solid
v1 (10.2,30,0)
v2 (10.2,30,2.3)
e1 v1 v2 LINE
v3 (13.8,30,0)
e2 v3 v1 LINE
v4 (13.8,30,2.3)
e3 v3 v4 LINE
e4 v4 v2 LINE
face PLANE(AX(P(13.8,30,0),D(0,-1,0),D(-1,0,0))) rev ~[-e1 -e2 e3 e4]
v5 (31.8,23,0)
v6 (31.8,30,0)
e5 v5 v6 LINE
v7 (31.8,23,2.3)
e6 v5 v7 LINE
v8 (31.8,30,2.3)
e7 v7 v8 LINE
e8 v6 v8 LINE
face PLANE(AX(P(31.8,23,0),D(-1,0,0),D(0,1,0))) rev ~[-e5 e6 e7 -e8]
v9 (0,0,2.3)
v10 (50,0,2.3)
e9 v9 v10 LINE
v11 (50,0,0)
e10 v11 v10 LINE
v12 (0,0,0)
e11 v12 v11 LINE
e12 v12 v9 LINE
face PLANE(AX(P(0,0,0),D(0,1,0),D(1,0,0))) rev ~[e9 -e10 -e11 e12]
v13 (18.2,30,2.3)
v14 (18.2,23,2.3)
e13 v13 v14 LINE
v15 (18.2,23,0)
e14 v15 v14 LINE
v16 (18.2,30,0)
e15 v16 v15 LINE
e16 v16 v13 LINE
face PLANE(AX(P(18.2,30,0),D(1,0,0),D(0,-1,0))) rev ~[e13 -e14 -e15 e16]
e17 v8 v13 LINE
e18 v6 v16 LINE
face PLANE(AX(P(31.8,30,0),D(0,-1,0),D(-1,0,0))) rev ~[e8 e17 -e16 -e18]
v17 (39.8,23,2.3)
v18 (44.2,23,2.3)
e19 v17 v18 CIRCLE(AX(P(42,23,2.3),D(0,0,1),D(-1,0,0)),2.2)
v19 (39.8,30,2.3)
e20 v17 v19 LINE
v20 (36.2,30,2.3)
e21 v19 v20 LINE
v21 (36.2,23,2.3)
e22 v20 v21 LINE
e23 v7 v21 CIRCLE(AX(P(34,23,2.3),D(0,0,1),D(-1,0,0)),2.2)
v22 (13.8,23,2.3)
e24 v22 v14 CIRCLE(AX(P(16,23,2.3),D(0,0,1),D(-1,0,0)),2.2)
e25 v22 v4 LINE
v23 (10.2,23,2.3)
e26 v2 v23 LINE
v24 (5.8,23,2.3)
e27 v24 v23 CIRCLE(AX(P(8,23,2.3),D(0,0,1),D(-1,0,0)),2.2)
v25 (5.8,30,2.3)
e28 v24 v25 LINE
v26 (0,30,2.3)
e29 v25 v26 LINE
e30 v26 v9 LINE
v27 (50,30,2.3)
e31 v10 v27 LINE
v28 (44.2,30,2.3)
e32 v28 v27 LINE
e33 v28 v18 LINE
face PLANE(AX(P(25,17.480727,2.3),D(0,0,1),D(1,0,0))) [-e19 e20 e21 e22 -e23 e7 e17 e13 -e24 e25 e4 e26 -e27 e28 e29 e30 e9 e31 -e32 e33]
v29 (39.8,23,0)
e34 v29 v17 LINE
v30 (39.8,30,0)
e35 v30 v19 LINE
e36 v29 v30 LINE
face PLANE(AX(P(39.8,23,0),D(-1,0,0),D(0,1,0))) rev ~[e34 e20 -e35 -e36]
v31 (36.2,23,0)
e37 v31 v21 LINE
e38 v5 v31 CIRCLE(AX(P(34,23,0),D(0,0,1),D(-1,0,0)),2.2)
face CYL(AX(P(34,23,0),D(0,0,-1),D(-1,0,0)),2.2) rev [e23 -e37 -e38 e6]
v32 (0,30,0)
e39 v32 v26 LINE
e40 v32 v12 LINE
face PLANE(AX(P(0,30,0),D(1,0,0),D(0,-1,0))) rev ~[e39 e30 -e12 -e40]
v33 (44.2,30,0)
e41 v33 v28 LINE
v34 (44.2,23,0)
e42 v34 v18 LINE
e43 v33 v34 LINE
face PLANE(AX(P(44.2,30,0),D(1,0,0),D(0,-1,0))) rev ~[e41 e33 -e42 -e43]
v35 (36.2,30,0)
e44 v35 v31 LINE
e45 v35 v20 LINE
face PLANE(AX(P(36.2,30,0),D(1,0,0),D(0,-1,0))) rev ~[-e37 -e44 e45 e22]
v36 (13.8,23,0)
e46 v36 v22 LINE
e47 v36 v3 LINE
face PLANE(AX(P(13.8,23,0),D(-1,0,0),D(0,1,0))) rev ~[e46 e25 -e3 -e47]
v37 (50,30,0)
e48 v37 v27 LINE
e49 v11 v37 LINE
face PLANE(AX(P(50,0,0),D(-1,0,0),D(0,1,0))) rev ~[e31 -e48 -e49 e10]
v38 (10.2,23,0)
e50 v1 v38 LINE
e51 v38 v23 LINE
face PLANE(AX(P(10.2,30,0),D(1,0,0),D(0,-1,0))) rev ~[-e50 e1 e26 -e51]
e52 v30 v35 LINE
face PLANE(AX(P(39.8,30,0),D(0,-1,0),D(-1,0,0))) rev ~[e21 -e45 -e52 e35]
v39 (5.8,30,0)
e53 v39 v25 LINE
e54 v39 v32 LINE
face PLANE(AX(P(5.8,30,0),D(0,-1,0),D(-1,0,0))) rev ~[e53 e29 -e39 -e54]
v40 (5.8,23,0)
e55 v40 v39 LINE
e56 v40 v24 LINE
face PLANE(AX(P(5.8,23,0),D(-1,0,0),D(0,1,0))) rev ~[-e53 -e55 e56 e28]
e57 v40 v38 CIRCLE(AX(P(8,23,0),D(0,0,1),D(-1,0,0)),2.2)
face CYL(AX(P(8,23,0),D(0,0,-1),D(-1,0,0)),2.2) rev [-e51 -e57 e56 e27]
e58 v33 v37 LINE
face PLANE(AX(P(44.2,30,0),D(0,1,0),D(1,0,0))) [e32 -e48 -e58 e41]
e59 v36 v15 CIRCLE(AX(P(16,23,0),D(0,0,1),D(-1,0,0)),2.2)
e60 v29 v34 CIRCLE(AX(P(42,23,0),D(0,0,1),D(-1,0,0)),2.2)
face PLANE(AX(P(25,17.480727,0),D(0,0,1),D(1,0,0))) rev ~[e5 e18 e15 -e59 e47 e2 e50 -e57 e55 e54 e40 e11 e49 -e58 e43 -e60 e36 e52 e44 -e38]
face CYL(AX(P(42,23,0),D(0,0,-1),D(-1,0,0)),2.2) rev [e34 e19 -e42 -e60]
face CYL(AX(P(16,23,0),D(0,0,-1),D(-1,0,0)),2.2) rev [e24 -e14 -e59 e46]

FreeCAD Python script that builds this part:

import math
import FreeCAD as App
import Part
import Sketcher
from FreeCAD import Vector
Q = App.Units.Quantity

doc = App.newDocument("Part")
body = doc.addObject("PartDesign::Body", "Body")

sketch1 = body.newObject("Sketcher::SketchObject", "Sketch")
sketch1.AttachmentSupport = (doc.getObject("XY_Plane"), [""])
sketch1.MapMode = "FlatFace"
sketch1.addGeometry(Part.LineSegment(Vector(0, 0, 0), Vector(50, 0, 0)), False)
sketch1.addGeometry(Part.LineSegment(Vector(50, 0, 0), Vector(50, 30, 0)), False)
sketch1.addGeometry(Part.LineSegment(Vector(50, 30, 0), Vector(44.2, 30, 0)), False)
sketch1.addGeometry(Part.LineSegment(Vector(44.2, 30, 0), Vector(44.2, 23, 0)), False)
sketch1.addGeometry(Part.ArcOfCircle(Part.Circle(Vector(42, 23, 0), Vector(0, 0, 1), 2.2), math.radians(180), math.radians(360)), False)
sketch1.addGeometry(Part.LineSegment(Vector(39.8, 23, 0), Vector(39.8, 30, 0)), False)
sketch1.addGeometry(Part.LineSegment(Vector(39.8, 30, 0), Vector(36.2, 30, 0)), False)
sketch1.addGeometry(Part.LineSegment(Vector(36.2, 30, 0), Vector(36.2, 23, 0)), False)
sketch1.addGeometry(Part.ArcOfCircle(Part.Circle(Vector(34, 23, 0), Vector(0, 0, 1), 2.2), math.radians(180), math.radians(360)), False)
sketch1.addGeometry(Part.LineSegment(Vector(31.8, 23, 0), Vector(31.8, 30, 0)), False)
sketch1.addGeometry(Part.LineSegment(Vector(31.8, 30, 0), Vector(18.2, 30, 0)), False)
sketch1.addGeometry(Part.LineSegment(Vector(18.2, 30, 0), Vector(18.2, 23, 0)), False)
sketch1.addGeometry(Part.ArcOfCircle(Part.Circle(Vector(16, 23, 0), Vector(0, 0, 1), 2.2), math.radians(180), math.radians(360)), False)
sketch1.addGeometry(Part.LineSegment(Vector(13.8, 23, 0), Vector(13.8, 30, 0)), False)
sketch1.addGeometry(Part.LineSegment(Vector(13.8, 30, 0), Vector(10.2, 30, 0)), False)
sketch1.addGeometry(Part.LineSegment(Vector(10.2, 30, 0), Vector(10.2, 23, 0)), False)
sketch1.addGeometry(Part.ArcOfCircle(Part.Circle(Vector(8, 23, 0), Vector(0, 0, 1), 2.2), math.radians(180), math.radians(360)), False)
sketch1.addGeometry(Part.LineSegment(Vector(5.8, 23, 0), Vector(5.8, 30, 0)), False)
sketch1.addGeometry(Part.LineSegment(Vector(5.8, 30, 0), Vector(0, 30, 0)), False)
sketch1.addGeometry(Part.LineSegment(Vector(0, 30, 0), Vector(0, 0, 0)), False)
sketch1.addConstraint(Sketcher.Constraint("Coincident", 0, 2, 1, 1))
sketch1.addConstraint(Sketcher.Constraint("Coincident", 1, 2, 2, 1))
sketch1.addConstraint(Sketcher.Constraint("Coincident", 2, 2, 3, 1))
sketch1.addConstraint(Sketcher.Constraint("Tangent", 3, 2, 4, 2))
sketch1.addConstraint(Sketcher.Constraint("Tangent", 4, 1, 5, 1))
sketch1.addConstraint(Sketcher.Constraint("Coincident", 5, 2, 6, 1))
sketch1.addConstraint(Sketcher.Constraint("Coincident", 6, 2, 7, 1))
sketch1.addConstraint(Sketcher.Constraint("Tangent", 7, 2, 8, 2))
sketch1.addConstraint(Sketcher.Constraint("Tangent", 8, 1, 9, 1))
sketch1.addConstraint(Sketcher.Constraint("Coincident", 9, 2, 10, 1))
sketch1.addConstraint(Sketcher.Constraint("Coincident", 10, 2, 11, 1))
sketch1.addConstraint(Sketcher.Constraint("Tangent", 11, 2, 12, 2))
sketch1.addConstraint(Sketcher.Constraint("Tangent", 12, 1, 13, 1))
sketch1.addConstraint(Sketcher.Constraint("Coincident", 13, 2, 14, 1))
sketch1.addConstraint(Sketcher.Constraint("Coincident", 14, 2, 15, 1))
sketch1.addConstraint(Sketcher.Constraint("Tangent", 15, 2, 16, 2))
sketch1.addConstraint(Sketcher.Constraint("Tangent", 16, 1, 17, 1))
sketch1.addConstraint(Sketcher.Constraint("Coincident", 17, 2, 18, 1))
sketch1.addConstraint(Sketcher.Constraint("Coincident", 18, 2, 19, 1))
sketch1.addConstraint(Sketcher.Constraint("Coincident", 19, 2, 0, 1))
sketch1.addConstraint(Sketcher.Constraint("Horizontal", 0))
sketch1.addConstraint(Sketcher.Constraint("Vertical", 1))
sketch1.addConstraint(Sketcher.Constraint("Horizontal", 2))
sketch1.addConstraint(Sketcher.Constraint("Vertical", 3))
sketch1.addConstraint(Sketcher.Constraint("Vertical", 5))
sketch1.addConstraint(Sketcher.Constraint("Horizontal", 6))
sketch1.addConstraint(Sketcher.Constraint("Vertical", 7))
sketch1.addConstraint(Sketcher.Constraint("Vertical", 9))
sketch1.addConstraint(Sketcher.Constraint("Horizontal", 10))
sketch1.addConstraint(Sketcher.Constraint("Vertical", 11))
sketch1.addConstraint(Sketcher.Constraint("Vertical", 13))
sketch1.addConstraint(Sketcher.Constraint("Horizontal", 14))
sketch1.addConstraint(Sketcher.Constraint("Vertical", 15))
sketch1.addConstraint(Sketcher.Constraint("Vertical", 17))
sketch1.addConstraint(Sketcher.Constraint("Horizontal", 18))
sketch1.addConstraint(Sketcher.Constraint("Vertical", 19))
sketch1.addConstraint(Sketcher.Constraint("Coincident", 19, 2, -1, 1))
sketch1.addConstraint(Sketcher.Constraint("Equal", 4, 8))
sketch1.addConstraint(Sketcher.Constraint("Equal", 8, 12))
sketch1.addConstraint(Sketcher.Constraint("Equal", 12, 16))
sketch1.addConstraint(Sketcher.Constraint("Horizontal", 4, 3, 8, 3))
sketch1.addConstraint(Sketcher.Constraint("Horizontal", 8, 3, 12, 3))
sketch1.addConstraint(Sketcher.Constraint("Horizontal", 12, 3, 16, 3))
sketch1.addConstraint(Sketcher.Constraint("Horizontal", 2, 2, 5, 2))
sketch1.addConstraint(Sketcher.Constraint("Horizontal", 6, 2, 9, 2))
sketch1.addConstraint(Sketcher.Constraint("Horizontal", 10, 2, 13, 2))
sketch1.addConstraint(Sketcher.Constraint("Horizontal", 14, 2, 17, 2))
sketch1.addConstraint(Sketcher.Constraint("Equal", 6, 14))
sketch1.addConstraint(Sketcher.Constraint("Equal", 2, 18))
sketch1.addConstraint(Sketcher.Constraint("Radius", 4, Q("2.2 mm")))
sketch1.addConstraint(Sketcher.Constraint("DistanceX", 0, 1, 0, 2, Q("50 mm")))
sketch1.addConstraint(Sketcher.Constraint("DistanceY", 1, 1, 1, 2, Q("30 mm")))
sketch1.addConstraint(Sketcher.Constraint("DistanceY", 3, 2, 3, 1, Q("7 mm")))
sketch1.addConstraint(Sketcher.Constraint("DistanceX", 2, 2, 2, 1, Q("5.8 mm")))
sketch1.addConstraint(Sketcher.Constraint("DistanceX", 6, 2, 6, 1, Q("3.6 mm")))
pad1 = body.newObject("PartDesign::Pad", "Pad")
pad1.Profile = sketch1
pad1.Length = 2.3

doc.recompute()
